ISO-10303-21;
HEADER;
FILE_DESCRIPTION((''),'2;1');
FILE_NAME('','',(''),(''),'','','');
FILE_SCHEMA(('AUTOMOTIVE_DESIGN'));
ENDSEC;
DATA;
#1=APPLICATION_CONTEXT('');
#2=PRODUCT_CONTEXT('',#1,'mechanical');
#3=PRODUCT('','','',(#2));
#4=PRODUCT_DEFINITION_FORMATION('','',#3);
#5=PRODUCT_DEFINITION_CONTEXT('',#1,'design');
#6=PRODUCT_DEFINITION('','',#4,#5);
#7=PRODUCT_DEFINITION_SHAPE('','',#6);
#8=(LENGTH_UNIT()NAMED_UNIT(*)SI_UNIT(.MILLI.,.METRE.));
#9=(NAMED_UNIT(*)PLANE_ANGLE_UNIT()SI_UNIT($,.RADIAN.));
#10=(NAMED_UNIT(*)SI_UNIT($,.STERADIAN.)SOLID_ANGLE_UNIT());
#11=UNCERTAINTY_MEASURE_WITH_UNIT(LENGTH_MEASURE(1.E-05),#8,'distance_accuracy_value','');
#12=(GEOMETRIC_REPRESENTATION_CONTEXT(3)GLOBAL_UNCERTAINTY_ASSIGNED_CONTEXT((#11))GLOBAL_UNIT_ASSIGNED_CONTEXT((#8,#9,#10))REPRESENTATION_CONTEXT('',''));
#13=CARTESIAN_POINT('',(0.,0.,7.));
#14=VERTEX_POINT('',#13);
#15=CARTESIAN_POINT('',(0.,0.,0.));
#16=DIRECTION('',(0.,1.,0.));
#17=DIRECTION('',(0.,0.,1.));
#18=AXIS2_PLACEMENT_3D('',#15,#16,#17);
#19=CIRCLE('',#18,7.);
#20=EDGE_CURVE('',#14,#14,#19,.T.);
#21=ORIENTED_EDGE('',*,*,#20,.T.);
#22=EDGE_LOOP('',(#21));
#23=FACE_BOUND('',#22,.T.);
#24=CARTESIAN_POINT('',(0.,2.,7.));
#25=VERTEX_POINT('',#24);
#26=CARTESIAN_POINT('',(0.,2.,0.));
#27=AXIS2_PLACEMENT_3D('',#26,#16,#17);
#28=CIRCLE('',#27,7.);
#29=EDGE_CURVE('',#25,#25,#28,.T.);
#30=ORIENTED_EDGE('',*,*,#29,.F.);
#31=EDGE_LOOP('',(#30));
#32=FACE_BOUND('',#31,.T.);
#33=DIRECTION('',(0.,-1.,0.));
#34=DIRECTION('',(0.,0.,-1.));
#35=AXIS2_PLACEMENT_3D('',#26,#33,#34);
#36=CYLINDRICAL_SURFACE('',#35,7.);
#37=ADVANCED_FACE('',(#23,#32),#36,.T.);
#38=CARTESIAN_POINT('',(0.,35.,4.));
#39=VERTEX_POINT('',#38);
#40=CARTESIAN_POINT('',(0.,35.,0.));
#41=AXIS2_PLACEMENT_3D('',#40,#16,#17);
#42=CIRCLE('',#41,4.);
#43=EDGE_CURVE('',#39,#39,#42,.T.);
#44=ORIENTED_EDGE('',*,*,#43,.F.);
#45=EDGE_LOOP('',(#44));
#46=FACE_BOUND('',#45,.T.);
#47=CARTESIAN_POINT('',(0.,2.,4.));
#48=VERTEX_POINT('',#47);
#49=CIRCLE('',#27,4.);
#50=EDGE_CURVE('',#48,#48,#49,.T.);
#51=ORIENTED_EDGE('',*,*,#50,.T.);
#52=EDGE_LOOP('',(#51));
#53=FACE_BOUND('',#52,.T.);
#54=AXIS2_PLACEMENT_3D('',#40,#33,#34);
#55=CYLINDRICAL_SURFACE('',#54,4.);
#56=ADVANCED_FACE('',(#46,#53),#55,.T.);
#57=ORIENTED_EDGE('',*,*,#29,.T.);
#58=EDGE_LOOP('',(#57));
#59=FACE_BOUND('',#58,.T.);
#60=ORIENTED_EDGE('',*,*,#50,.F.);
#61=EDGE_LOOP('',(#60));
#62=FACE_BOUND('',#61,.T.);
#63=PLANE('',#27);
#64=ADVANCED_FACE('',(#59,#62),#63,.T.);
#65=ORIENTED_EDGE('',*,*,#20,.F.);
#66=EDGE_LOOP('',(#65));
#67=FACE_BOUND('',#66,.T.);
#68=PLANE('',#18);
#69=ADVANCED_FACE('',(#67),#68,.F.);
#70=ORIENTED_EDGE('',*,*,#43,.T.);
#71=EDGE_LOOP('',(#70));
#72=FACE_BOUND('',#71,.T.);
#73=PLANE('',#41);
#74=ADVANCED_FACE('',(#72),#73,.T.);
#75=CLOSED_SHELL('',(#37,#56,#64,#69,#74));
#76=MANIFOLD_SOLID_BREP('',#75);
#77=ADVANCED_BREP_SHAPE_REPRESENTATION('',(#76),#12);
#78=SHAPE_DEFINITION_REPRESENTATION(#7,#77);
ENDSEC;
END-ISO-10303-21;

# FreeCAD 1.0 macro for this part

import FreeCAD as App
import Part
import Sketcher
Q = App.Units.Quantity

doc = App.newDocument("Part")
params = doc.addObject("Spreadsheet::Sheet", "Params")
for row, (alias, value) in enumerate([
    ("sketch1_diameter", "14 mm"),
    ("sketch1_diameter2", "8 mm"),
    ("pad1_length", "2 mm"),
    ("sketch2_diameter", "8 mm"),
    ("pad2_length", "35 mm"),
], start=1):
    params.set(f"A{row}", alias)
    params.set(f"B{row}", "=" + value)
    params.setAlias(f"B{row}", alias)

body = doc.addObject("PartDesign::Body", "Body")

# Sketch on XZ plane
sketch1 = doc.addObject("Sketcher::SketchObject", "Sketch")
body.addObject(sketch1)
sketch1.AttachmentSupport = (doc.XZ_Plane, [""])
sketch1.MapMode = "FlatFace"
sketch1.addGeometry([
    Part.Circle(App.Vector(0, 0, 0), App.Vector(0, 0, 1), 7),
    Part.Circle(App.Vector(0, 0, 0), App.Vector(0, 0, 1), 4),
], False)
sketch1.addConstraint([
    Sketcher.Constraint("Coincident", 0, 3, -1, 1),
    Sketcher.Constraint("Coincident", 1, 3, -1, 1),
    Sketcher.Constraint("Diameter", 0, Q("14 mm")),
    Sketcher.Constraint("Diameter", 1, Q("8 mm")),
])
sketch1.setExpression("Constraints[2]", "Params.sketch1_diameter")
sketch1.setExpression("Constraints[3]", "Params.sketch1_diameter2")
pad1 = doc.addObject("PartDesign::Pad", "Pad")
body.addObject(pad1)
pad1.Profile = sketch1
pad1.setExpression("Length", "Params.pad1_length")
pad1.Reversed = True

# Sketch on XZ plane
sketch2 = doc.addObject("Sketcher::SketchObject", "Sketch001")
body.addObject(sketch2)
sketch2.AttachmentSupport = (doc.XZ_Plane, [""])
sketch2.MapMode = "FlatFace"
sketch2.addGeometry(Part.Circle(App.Vector(0, 0, 0), App.Vector(0, 0, 1), 4), False)
sketch2.addConstraint([
    Sketcher.Constraint("Coincident", 0, 3, -1, 1),
    Sketcher.Constraint("Diameter", 0, Q("8 mm")),
])
sketch2.setExpression("Constraints[1]", "Params.sketch2_diameter")
pad2 = doc.addObject("PartDesign::Pad", "Pad001")
body.addObject(pad2)
pad2.Profile = sketch2
pad2.setExpression("Length", "Params.pad2_length")
pad2.Reversed = True

doc.recompute()
